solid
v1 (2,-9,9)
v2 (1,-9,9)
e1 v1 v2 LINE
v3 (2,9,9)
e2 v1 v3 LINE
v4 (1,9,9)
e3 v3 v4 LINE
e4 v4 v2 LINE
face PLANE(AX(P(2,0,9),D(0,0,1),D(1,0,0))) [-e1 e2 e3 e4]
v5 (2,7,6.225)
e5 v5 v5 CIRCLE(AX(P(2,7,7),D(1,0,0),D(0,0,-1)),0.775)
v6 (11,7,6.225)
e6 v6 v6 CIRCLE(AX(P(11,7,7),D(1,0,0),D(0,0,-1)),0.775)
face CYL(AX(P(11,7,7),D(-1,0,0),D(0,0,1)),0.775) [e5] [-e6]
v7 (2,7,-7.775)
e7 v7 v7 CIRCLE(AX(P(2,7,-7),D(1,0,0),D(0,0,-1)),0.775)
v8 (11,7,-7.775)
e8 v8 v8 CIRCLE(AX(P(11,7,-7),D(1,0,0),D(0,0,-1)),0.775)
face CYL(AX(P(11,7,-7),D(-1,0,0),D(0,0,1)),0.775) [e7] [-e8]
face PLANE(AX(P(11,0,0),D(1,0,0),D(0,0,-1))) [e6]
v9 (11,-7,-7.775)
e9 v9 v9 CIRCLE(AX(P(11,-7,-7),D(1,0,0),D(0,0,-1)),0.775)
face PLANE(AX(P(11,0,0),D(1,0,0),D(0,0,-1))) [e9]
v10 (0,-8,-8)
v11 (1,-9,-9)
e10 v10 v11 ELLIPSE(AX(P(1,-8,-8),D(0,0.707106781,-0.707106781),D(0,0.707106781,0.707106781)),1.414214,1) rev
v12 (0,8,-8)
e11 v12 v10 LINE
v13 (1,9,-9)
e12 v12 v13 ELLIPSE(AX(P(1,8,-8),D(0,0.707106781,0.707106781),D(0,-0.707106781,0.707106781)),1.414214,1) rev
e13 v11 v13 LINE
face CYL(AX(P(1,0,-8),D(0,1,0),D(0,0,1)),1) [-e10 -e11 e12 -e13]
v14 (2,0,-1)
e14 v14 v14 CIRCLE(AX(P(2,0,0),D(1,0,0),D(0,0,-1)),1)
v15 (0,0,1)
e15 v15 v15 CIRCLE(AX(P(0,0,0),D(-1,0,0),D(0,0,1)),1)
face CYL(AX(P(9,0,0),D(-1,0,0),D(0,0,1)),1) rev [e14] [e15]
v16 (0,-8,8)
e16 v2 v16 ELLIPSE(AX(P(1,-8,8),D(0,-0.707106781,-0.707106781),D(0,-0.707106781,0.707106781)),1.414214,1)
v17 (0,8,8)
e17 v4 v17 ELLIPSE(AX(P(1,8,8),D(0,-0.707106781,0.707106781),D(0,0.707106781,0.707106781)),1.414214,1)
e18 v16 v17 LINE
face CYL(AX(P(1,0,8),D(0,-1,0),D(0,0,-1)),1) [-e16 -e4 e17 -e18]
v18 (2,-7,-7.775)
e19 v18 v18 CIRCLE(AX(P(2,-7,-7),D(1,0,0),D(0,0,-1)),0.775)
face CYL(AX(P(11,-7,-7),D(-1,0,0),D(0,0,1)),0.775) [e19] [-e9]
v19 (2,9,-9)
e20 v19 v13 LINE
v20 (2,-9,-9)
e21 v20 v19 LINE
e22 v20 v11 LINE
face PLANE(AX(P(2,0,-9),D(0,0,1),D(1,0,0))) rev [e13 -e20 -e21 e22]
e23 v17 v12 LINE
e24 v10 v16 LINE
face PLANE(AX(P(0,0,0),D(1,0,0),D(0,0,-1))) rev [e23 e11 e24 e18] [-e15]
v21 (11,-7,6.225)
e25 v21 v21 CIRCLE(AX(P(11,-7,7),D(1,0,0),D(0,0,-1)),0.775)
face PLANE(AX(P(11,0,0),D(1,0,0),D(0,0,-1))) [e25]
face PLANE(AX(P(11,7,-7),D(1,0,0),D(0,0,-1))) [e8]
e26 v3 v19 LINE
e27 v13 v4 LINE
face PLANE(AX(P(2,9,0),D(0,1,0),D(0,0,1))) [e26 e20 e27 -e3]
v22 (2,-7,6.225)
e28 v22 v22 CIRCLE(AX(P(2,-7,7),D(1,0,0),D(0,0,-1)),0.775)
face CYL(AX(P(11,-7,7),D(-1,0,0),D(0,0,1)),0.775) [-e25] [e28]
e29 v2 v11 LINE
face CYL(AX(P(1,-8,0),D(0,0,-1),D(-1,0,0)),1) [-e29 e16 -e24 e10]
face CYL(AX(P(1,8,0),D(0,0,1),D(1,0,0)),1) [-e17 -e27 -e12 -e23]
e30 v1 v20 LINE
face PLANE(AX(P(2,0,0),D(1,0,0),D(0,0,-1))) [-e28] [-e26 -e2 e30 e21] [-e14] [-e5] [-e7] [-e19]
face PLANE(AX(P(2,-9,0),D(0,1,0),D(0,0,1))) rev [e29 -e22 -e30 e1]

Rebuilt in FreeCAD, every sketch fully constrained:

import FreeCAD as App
import Part
import Sketcher

V = App.Vector


def edges_at(feature, points):
    """Names of the edges that pass closest to the given points."""
    edges = feature.Shape.Edges
    near = lambda p: min(range(len(edges)), key=lambda i: edges[i].distToShape(Part.Vertex(*p))[0])
    return sorted({f"Edge{near(p) + 1}" for p in points})

doc = App.newDocument("Part")
params = doc.addObject("Spreadsheet::Sheet", "Params")
for row, (alias, value) in enumerate([
    ("sketch1_width", "18 mm"),
    ("pad1_length", "2 mm"),
    ("sketch2_diameter", "1.55 mm"),
    ("pad2_length", "9 mm"),
    ("sketch3_diameter", "2 mm"),
    ("pocket1_length", "9 mm"),
    ("fillet_radius", "1 mm"),
], start=1):
    params.set(f"A{row}", alias)
    params.set(f"B{row}", "=" + value)
    params.setAlias(f"B{row}", alias)

body = doc.addObject("PartDesign::Body", "Body")

# Sketch on YZ plane
sketch1 = doc.addObject("Sketcher::SketchObject", "Sketch")
body.addObject(sketch1)
sketch1.AttachmentSupport = (doc.YZ_Plane, [""])
sketch1.MapMode = "FlatFace"
sketch1.addGeometry(Part.LineSegment(V(9, 9, 0), V(-9, 9, 0)), False)
sketch1.addGeometry(Part.LineSegment(V(-9, 9, 0), V(-9, -9, 0)), False)
sketch1.addGeometry(Part.LineSegment(V(-9, -9, 0), V(9, -9, 0)), False)
sketch1.addGeometry(Part.LineSegment(V(9, -9, 0), V(9, 9, 0)), False)
sketch1.addConstraint(Sketcher.Constraint("Coincident", 0, 2, 1, 1))
sketch1.addConstraint(Sketcher.Constraint("Coincident", 1, 2, 2, 1))
sketch1.addConstraint(Sketcher.Constraint("Coincident", 2, 2, 3, 1))
sketch1.addConstraint(Sketcher.Constraint("Coincident", 3, 2, 0, 1))
sketch1.addConstraint(Sketcher.Constraint("Horizontal", 0))
sketch1.addConstraint(Sketcher.Constraint("Vertical", 1))
sketch1.addConstraint(Sketcher.Constraint("Horizontal", 2))
sketch1.addConstraint(Sketcher.Constraint("Vertical", 3))
sketch1.addConstraint(Sketcher.Constraint("Symmetric", 0, 2, 2, 2, -1, 1))
sketch1.addConstraint(Sketcher.Constraint("Equal", 2, 1))
sketch1.addConstraint(Sketcher.Constraint("DistanceX", 0, 2, 0, 1, 18.0))
sketch1.setExpression("Constraints[10]", "Params.sketch1_width")
pad1 = doc.addObject("PartDesign::Pad", "Pad")
body.addObject(pad1)
pad1.Profile = sketch1
pad1.setExpression("Length", "Params.pad1_length")

# Sketch on YZ plane
sketch2 = doc.addObject("Sketcher::SketchObject", "Sketch001")
body.addObject(sketch2)
sketch2.AttachmentSupport = (doc.YZ_Plane, [""])
sketch2.MapMode = "FlatFace"
sketch2.AttachmentOffset = App.Placement(V(0, 0, 2), App.Rotation())
sketch2.addGeometry(Part.Circle(V(7, 7, 0), V(0, 0, 1), 0.775), False)
sketch2.addGeometry(Part.Circle(V(-7, 7, 0), V(0, 0, 1), 0.775), False)
sketch2.addGeometry(Part.Circle(V(-7, -7, 0), V(0, 0, 1), 0.775), False)
sketch2.addGeometry(Part.Circle(V(7, -7, 0), V(0, 0, 1), 0.775), False)
sketch2.addConstraint(Sketcher.Constraint("Equal", 0, 1))
sketch2.addConstraint(Sketcher.Constraint("Equal", 1, 2))
sketch2.addConstraint(Sketcher.Constraint("Equal", 2, 3))
sketch2.addConstraint(Sketcher.Constraint("Symmetric", 0, 3, 2, 3, -1, 1))
sketch2.addConstraint(Sketcher.Constraint("Symmetric", 1, 3, 3, 3, -1, 1))
sketch2.addConstraint(Sketcher.Constraint("Symmetric", 0, 3, 1, 3, -2))
sketch2.addConstraint(Sketcher.Constraint("Diameter", 0, 1.55))
sketch2.addConstraint(Sketcher.Constraint("DistanceX", -1, 1, 0, 3, 7.0))
sketch2.addConstraint(Sketcher.Constraint("DistanceY", -1, 1, 0, 3, 7.0))
sketch2.setExpression("Constraints[6]", "Params.sketch2_diameter")
pad2 = doc.addObject("PartDesign::Pad", "Pad001")
body.addObject(pad2)
pad2.Profile = sketch2
pad2.setExpression("Length", "Params.pad2_length")

# Sketch on YZ plane
sketch3 = doc.addObject("Sketcher::SketchObject", "Sketch002")
body.addObject(sketch3)
sketch3.AttachmentSupport = (doc.YZ_Plane, [""])
sketch3.MapMode = "FlatFace"
sketch3.addGeometry(Part.Circle(V(0, 0, 0), V(0, 0, 1), 1), False)
sketch3.addConstraint(Sketcher.Constraint("Coincident", 0, 3, -1, 1))
sketch3.addConstraint(Sketcher.Constraint("Diameter", 0, 2.0))
sketch3.setExpression("Constraints[1]", "Params.sketch3_diameter")
pocket1 = doc.addObject("PartDesign::Pocket", "Pocket")
body.addObject(pocket1)
pocket1.Profile = sketch3
pocket1.setExpression("Length", "Params.pocket1_length")
pocket1.Reversed = True
doc.recompute()

fillet = doc.addObject("PartDesign::Fillet", "Fillet")
body.addObject(fillet)
fillet.Base = (pocket1, edges_at(pocket1, [
    (0, 0, 9),
    (0, 9, 0),
    (0, 0, -9),
    (0, -9, 0),
]))
fillet.setExpression("Radius", "Params.fillet_radius")

doc.recompute()
